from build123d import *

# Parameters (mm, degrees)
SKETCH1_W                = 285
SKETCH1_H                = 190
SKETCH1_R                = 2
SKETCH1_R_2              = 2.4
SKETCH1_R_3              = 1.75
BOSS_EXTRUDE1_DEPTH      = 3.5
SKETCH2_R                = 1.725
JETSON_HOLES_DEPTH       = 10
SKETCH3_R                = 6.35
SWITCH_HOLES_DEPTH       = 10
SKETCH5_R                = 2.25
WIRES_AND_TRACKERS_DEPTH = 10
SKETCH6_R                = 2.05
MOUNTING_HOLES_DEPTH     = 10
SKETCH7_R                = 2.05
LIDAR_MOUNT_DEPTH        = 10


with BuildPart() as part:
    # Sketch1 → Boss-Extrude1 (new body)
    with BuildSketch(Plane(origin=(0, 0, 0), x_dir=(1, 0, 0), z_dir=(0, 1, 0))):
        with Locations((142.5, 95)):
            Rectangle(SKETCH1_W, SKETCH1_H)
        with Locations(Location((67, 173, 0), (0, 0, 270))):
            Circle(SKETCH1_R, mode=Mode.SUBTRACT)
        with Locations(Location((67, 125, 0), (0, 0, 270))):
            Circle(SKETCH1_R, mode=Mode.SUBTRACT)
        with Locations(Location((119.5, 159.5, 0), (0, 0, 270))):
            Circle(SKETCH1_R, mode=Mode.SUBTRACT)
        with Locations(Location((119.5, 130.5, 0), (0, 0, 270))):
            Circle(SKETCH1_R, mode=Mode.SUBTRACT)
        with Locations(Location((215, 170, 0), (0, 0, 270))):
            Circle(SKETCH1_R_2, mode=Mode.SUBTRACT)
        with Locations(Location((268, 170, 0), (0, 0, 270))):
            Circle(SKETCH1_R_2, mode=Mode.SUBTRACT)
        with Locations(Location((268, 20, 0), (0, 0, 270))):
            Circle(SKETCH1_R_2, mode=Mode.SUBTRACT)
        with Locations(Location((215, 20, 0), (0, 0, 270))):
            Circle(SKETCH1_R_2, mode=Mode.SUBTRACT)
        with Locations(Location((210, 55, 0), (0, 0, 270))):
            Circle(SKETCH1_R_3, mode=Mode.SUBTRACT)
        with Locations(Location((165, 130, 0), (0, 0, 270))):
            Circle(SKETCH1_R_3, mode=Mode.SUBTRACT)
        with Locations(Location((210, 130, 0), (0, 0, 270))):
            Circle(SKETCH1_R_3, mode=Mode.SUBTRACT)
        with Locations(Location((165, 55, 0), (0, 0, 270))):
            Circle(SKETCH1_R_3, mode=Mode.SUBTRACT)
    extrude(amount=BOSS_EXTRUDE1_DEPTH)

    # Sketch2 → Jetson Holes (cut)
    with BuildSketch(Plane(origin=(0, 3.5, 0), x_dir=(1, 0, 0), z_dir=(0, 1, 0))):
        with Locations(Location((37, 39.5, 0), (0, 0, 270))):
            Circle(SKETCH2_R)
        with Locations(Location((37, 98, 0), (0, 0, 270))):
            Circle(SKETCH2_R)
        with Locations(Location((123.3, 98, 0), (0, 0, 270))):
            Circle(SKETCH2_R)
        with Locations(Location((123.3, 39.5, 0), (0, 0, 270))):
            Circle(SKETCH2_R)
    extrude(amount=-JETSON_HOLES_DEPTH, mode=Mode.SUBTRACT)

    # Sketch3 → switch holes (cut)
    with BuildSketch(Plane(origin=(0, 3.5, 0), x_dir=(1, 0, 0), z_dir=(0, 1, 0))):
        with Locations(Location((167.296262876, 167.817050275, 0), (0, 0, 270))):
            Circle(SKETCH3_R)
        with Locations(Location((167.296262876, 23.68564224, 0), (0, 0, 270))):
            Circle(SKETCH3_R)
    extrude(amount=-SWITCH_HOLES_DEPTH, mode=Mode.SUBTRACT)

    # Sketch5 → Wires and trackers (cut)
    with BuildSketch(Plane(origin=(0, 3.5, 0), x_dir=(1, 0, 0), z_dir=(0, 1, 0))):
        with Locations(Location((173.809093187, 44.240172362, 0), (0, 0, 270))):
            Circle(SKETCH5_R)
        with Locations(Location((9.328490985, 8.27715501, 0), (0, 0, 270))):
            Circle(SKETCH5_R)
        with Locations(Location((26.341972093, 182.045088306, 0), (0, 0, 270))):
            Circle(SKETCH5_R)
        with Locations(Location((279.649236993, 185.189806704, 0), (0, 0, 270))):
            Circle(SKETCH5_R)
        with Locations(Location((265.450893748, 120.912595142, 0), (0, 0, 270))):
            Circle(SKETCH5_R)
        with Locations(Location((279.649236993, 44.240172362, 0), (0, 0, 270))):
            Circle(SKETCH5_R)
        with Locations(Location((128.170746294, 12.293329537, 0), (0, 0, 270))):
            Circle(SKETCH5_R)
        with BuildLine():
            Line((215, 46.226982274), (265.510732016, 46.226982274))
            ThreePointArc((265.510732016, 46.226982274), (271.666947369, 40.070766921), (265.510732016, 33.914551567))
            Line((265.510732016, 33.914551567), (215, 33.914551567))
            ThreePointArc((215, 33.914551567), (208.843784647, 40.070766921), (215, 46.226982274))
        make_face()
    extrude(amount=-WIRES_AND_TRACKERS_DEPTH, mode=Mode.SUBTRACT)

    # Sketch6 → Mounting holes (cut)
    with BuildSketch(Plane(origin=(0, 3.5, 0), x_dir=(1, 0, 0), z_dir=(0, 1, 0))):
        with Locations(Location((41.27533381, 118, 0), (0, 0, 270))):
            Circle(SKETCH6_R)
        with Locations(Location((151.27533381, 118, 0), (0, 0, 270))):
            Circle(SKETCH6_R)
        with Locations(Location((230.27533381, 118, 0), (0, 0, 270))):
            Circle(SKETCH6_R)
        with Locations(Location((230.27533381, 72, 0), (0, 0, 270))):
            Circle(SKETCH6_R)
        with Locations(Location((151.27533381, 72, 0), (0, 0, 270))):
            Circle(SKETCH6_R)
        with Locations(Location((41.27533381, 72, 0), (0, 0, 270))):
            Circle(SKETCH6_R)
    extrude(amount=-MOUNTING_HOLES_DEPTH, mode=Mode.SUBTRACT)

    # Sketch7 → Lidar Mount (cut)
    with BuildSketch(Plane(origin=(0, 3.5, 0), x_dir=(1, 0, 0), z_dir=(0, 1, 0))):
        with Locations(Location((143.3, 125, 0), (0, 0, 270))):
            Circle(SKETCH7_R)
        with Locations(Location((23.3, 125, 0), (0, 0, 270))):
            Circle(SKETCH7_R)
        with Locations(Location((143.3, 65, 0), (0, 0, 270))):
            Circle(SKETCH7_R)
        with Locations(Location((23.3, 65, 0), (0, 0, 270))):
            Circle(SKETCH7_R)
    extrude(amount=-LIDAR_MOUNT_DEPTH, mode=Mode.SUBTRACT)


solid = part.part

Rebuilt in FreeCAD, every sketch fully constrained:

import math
import FreeCAD as App
import Part
import Sketcher
from FreeCAD import Vector
Q = App.Units.Quantity

doc = App.newDocument("Part")
params = doc.addObject("Spreadsheet::Sheet", "Params")
for row, (alias, value) in enumerate([
    ("sketch1_diameter", "4 mm"),
    ("sketch1_diameter2", "3.5 mm"),
    ("sketch1_diameter3", "4.8 mm"),
    ("sketch1_width", "285 mm"),
    ("sketch1_height", "190 mm"),
    ("pad1_length", "3.5 mm"),
    ("sketch2_diameter", "3.45 mm"),
    ("pocket1_length", "10 mm"),
    ("sketch3_diameter", "12.7 mm"),
    ("pocket2_length", "10 mm"),
    ("sketch4_diameter", "4.5 mm"),
    ("pocket3_length", "10 mm"),
    ("sketch5_diameter", "4.1 mm"),
    ("pocket4_length", "10 mm"),
    ("sketch6_diameter", "4.1 mm"),
    ("pocket5_length", "10 mm"),
], start=1):
    params.set(f"A{row}", alias)
    params.set(f"B{row}", "=" + value)
    params.setAlias(f"B{row}", alias)

body = doc.addObject("PartDesign::Body", "Body")

sketch1 = doc.addObject("Sketcher::SketchObject", "Sketch")
body.addObject(sketch1)
sketch1.AttachmentSupport = (doc.XZ_Plane, [""])
sketch1.MapMode = "FlatFace"
sketch1.addGeometry([
    Part.LineSegment(Vector(0, -190, 0), Vector(0, 0, 0)),
    Part.LineSegment(Vector(0, 0, 0), Vector(285, 0, 0)),
    Part.LineSegment(Vector(285, 0, 0), Vector(285, -190, 0)),
    Part.LineSegment(Vector(285, -190, 0), Vector(0, -190, 0)),
    Part.Circle(Vector(165, -55, 0), Vector(0, 0, 1), 1.8),
    Part.Circle(Vector(215, -20, 0), Vector(0, 0, 1), 2.4),
    Part.Circle(Vector(210, -55, 0), Vector(0, 0, 1), 1.8),
    Part.Circle(Vector(268, -20, 0), Vector(0, 0, 1), 2.4),
    Part.Circle(Vector(67, -125, 0), Vector(0, 0, 1), 2),
    Part.Circle(Vector(119.5, -130.5, 0), Vector(0, 0, 1), 2),
    Part.Circle(Vector(165, -130, 0), Vector(0, 0, 1), 1.8),
    Part.Circle(Vector(67, -173, 0), Vector(0, 0, 1), 2),
    Part.Circle(Vector(119.5, -159.5, 0), Vector(0, 0, 1), 2),
    Part.Circle(Vector(210, -130, 0), Vector(0, 0, 1), 1.8),
    Part.Circle(Vector(215, -170, 0), Vector(0, 0, 1), 2.4),
    Part.Circle(Vector(268, -170, 0), Vector(0, 0, 1), 2.4),
], False)
sketch1.addConstraint([
    Sketcher.Constraint("Coincident", 0, 2, 1, 1),
    Sketcher.Constraint("Coincident", 1, 2, 2, 1),
    Sketcher.Constraint("Coincident", 2, 2, 3, 1),
    Sketcher.Constraint("Coincident", 3, 2, 0, 1),
    Sketcher.Constraint("Vertical", 0),
    Sketcher.Constraint("Horizontal", 1),
    Sketcher.Constraint("Vertical", 2),
    Sketcher.Constraint("Horizontal", 3),
    Sketcher.Constraint("Coincident", 0, 2, -1, 1),
    Sketcher.Constraint("Equal", 4, 6),
    Sketcher.Constraint("Equal", 5, 7),
    Sketcher.Constraint("Equal", 8, 9),
    Sketcher.Constraint("Equal", 6, 10),
    Sketcher.Constraint("Equal", 9, 11),
    Sketcher.Constraint("Equal", 11, 12),
    Sketcher.Constraint("Equal", 10, 13),
    Sketcher.Constraint("Equal", 7, 14),
    Sketcher.Constraint("Equal", 14, 15),
    Sketcher.Constraint("Horizontal", 4, 3, 6, 3),
    Sketcher.Constraint("Horizontal", 5, 3, 7, 3),
    Sketcher.Constraint("Horizontal", 10, 3, 13, 3),
    Sketcher.Constraint("Horizontal", 14, 3, 15, 3),
    Sketcher.Constraint("Vertical", 4, 3, 10, 3),
    Sketcher.Constraint("Vertical", 8, 3, 11, 3),
    Sketcher.Constraint("Vertical", 9, 3, 12, 3),
    Sketcher.Constraint("Vertical", 6, 3, 13, 3),
    Sketcher.Constraint("Vertical", 5, 3, 14, 3),
    Sketcher.Constraint("Vertical", 7, 3, 15, 3),
    Sketcher.Constraint("Diameter", 8, Q("4 mm")),
    Sketcher.Constraint("Diameter", 4, Q("3.5 mm")),
    Sketcher.Constraint("Diameter", 5, Q("4.8 mm")),
    Sketcher.Constraint("DistanceX", 1, 1, 1, 2, Q("285 mm")),
    Sketcher.Constraint("DistanceY", 0, 1, 0, 2, Q("190 mm")),
    Sketcher.Constraint("DistanceX", -1, 1, 4, 3, Q("165 mm")),
    Sketcher.Constraint("DistanceY", 4, 3, -1, 1, Q("55 mm")),
    Sketcher.Constraint("DistanceX", -1, 1, 5, 3, Q("215 mm")),
    Sketcher.Constraint("DistanceY", 5, 3, -1, 1, Q("20 mm")),
    Sketcher.Constraint("DistanceX", -1, 1, 6, 3, Q("210 mm")),
    Sketcher.Constraint("DistanceX", -1, 1, 7, 3, Q("268 mm")),
    Sketcher.Constraint("DistanceX", -1, 1, 8, 3, Q("67 mm")),
    Sketcher.Constraint("DistanceY", 8, 3, -1, 1, Q("125 mm")),
    Sketcher.Constraint("DistanceY", 10, 3, -1, 1, Q("130 mm")),
    Sketcher.Constraint("DistanceY", 11, 3, -1, 1, Q("173 mm")),
    Sketcher.Constraint("DistanceY", 14, 3, -1, 1, Q("170 mm")),
    Sketcher.Constraint("DistanceY", 12, 3, 9, 3, Q("29 mm")),
    Sketcher.Constraint("DistanceX", -1, 1, 9, 3, Q("119.5 mm")),
    Sketcher.Constraint("DistanceY", 9, 3, -1, 1, Q("130.5 mm")),
])
sketch1.setExpression("Constraints[28]", "Params.sketch1_diameter")
sketch1.setExpression("Constraints[29]", "Params.sketch1_diameter2")
sketch1.setExpression("Constraints[30]", "Params.sketch1_diameter3")
sketch1.setExpression("Constraints[31]", "Params.sketch1_width")
sketch1.setExpression("Constraints[32]", "Params.sketch1_height")
pad1 = doc.addObject("PartDesign::Pad", "Pad")
body.addObject(pad1)
pad1.Profile = sketch1
pad1.setExpression("Length", "Params.pad1_length")
pad1.Reversed = True

sketch2 = doc.addObject("Sketcher::SketchObject", "Sketch001")
body.addObject(sketch2)
sketch2.AttachmentSupport = (doc.XZ_Plane, [""])
sketch2.MapMode = "FlatFace"
sketch2.AttachmentOffset = App.Placement(Vector(0, 0, -3.5), App.Rotation())
sketch2.addGeometry([
    Part.Circle(Vector(37, -39.5, 0), Vector(0, 0, 1), 1.7),
    Part.Circle(Vector(37, -98, 0), Vector(0, 0, 1), 1.7),
    Part.Circle(Vector(123.3, -98, 0), Vector(0, 0, 1), 1.7),
    Part.Circle(Vector(123.3, -39.5, 0), Vector(0, 0, 1), 1.7),
], False)
sketch2.addConstraint([
    Sketcher.Constraint("Equal", 0, 1),
    Sketcher.Constraint("Equal", 1, 2),
    Sketcher.Constraint("Equal", 2, 3),
    Sketcher.Constraint("Horizontal", 1, 3, 2, 3),
    Sketcher.Constraint("Horizontal", 0, 3, 3, 3),
    Sketcher.Constraint("Vertical", 0, 3, 1, 3),
    Sketcher.Constraint("Vertical", 2, 3, 3, 3),
    Sketcher.Constraint("Diameter", 0, Q("3.45 mm")),
    Sketcher.Constraint("DistanceX", -1, 1, 0, 3, Q("37 mm")),
    Sketcher.Constraint("DistanceY", 1, 3, -1, 1, Q("98 mm")),
    Sketcher.Constraint("DistanceY", 0, 3, -1, 1, Q("39.5 mm")),
    Sketcher.Constraint("DistanceX", -1, 1, 2, 3, Q("123.3 mm")),
])
sketch2.setExpression("Constraints[7]", "Params.sketch2_diameter")
pocket1 = doc.addObject("PartDesign::Pocket", "Pocket")
body.addObject(pocket1)
pocket1.Profile = sketch2
pocket1.setExpression("Length", "Params.pocket1_length")
pocket1.Reversed = True

sketch3 = doc.addObject("Sketcher::SketchObject", "Sketch002")
body.addObject(sketch3)
sketch3.AttachmentSupport = (doc.XZ_Plane, [""])
sketch3.MapMode = "FlatFace"
sketch3.AttachmentOffset = App.Placement(Vector(0, 0, -3.5), App.Rotation())
sketch3.addGeometry([
    Part.Circle(Vector(167, -168, 0), Vector(0, 0, 1), 6),
    Part.Circle(Vector(167, -24, 0), Vector(0, 0, 1), 6),
], False)
sketch3.addConstraint([
    Sketcher.Constraint("Equal", 0, 1),
    Sketcher.Constraint("Vertical", 0, 3, 1, 3),
    Sketcher.Constraint("Diameter", 0, Q("12.7 mm")),
    Sketcher.Constraint("DistanceY", 0, 3, -1, 1, Q("167.81705 mm")),
    Sketcher.Constraint("DistanceY", 0, 3, 1, 3, Q("144.131408 mm")),
    Sketcher.Constraint("DistanceX", -1, 1, 0, 3, Q("167.296263 mm")),
])
sketch3.setExpression("Constraints[2]", "Params.sketch3_diameter")
pocket2 = doc.addObject("PartDesign::Pocket", "Pocket001")
body.addObject(pocket2)
pocket2.Profile = sketch3
pocket2.setExpression("Length", "Params.pocket2_length")
pocket2.Reversed = True

sketch4 = doc.addObject("Sketcher::SketchObject", "Sketch003")
body.addObject(sketch4)
sketch4.AttachmentSupport = (doc.XZ_Plane, [""])
sketch4.MapMode = "FlatFace"
sketch4.AttachmentOffset = App.Placement(Vector(0, 0, -3.5), App.Rotation())
sketch4.addGeometry([
    Part.Circle(Vector(173.8, -44.2, 0), Vector(0, 0, 1), 2.2),
    Part.Circle(Vector(9.3, -8.3, 0), Vector(0, 0, 1), 2.2),
    Part.Circle(Vector(26.3, -182, 0), Vector(0, 0, 1), 2.2),
    Part.Circle(Vector(279.6, -185.2, 0), Vector(0, 0, 1), 2.2),
    Part.Circle(Vector(265.5, -120.9, 0), Vector(0, 0, 1), 2.2),
    Part.Circle(Vector(279.6, -44.2, 0), Vector(0, 0, 1), 2.2),
    Part.Circle(Vector(128.2, -12.3, 0), Vector(0, 0, 1), 2.2),
    Part.LineSegment(Vector(265.5, -46.2, 0), Vector(215, -46.2, 0)),
    Part.ArcOfCircle(Part.Circle(Vector(215, -40.1, 0), Vector(0, 0, 1), 6.2), math.radians(90), math.radians(270)),
    Part.LineSegment(Vector(215, -33.9, 0), Vector(265.5, -33.9, 0)),
    Part.ArcOfCircle(Part.Circle(Vector(265.5, -40.1, 0), Vector(0, 0, 1), 6.2), math.radians(-90), math.radians(90)),
], False)
sketch4.addConstraint([
    Sketcher.Constraint("Tangent", 7, 2, 8, 2),
    Sketcher.Constraint("Tangent", 8, 1, 9, 1),
    Sketcher.Constraint("Tangent", 9, 2, 10, 2),
    Sketcher.Constraint("Tangent", 10, 1, 7, 1),
    Sketcher.Constraint("Horizontal", 7),
    Sketcher.Constraint("Horizontal", 9),
    Sketcher.Constraint("Equal", 0, 1),
    Sketcher.Constraint("Equal", 1, 2),
    Sketcher.Constraint("Equal", 2, 3),
    Sketcher.Constraint("Equal", 3, 4),
    Sketcher.Constraint("Equal", 4, 5),
    Sketcher.Constraint("Equal", 5, 6),
    Sketcher.Constraint("Horizontal", 0, 3, 5, 3),
    Sketcher.Constraint("Vertical", 3, 3, 5, 3),
    Sketcher.Constraint("Diameter", 0, Q("4.5 mm")),
    Sketcher.Constraint("DistanceX", -1, 1, 8, 3, Q("215 mm")),
    Sketcher.Constraint("Radius", 8, Q("6.156215 mm")),
    Sketcher.Constraint("DistanceX", 0, 3, 4, 3, Q("91.641801 mm")),
    Sketcher.Constraint("DistanceX", 7, 2, 7, 1, Q("50.510732 mm")),
    Sketcher.Constraint("DistanceX", -1, 1, 1, 3, Q("9.328491 mm")),
    Sketcher.Constraint("DistanceY", 2, 3, -1, 1, Q("182.045088 mm")),
    Sketcher.Constraint("DistanceY", 6, 3, -1, 1, Q("12.29333 mm")),
    Sketcher.Constraint("DistanceY", 8, 1, -1, 1, Q("33.914552 mm")),
    Sketcher.Constraint("DistanceX", 1, 3, 2, 3, Q("17.013481 mm")),
    Sketcher.Constraint("DistanceX", 2, 3, 0, 3, Q("147.467121 mm")),
    Sketcher.Constraint("DistanceY", 3, 3, 2, 3, Q("3.144718 mm")),
    Sketcher.Constraint("DistanceY", 3, 3, 1, 3, Q("176.912652 mm")),
    Sketcher.Constraint("DistanceY", 3, 3, 4, 3, Q("64.277212 mm")),
    Sketcher.Constraint("DistanceX", 6, 3, 5, 3, Q("151.478491 mm")),
    Sketcher.Constraint("DistanceY", 7, 2, 0, 3, Q("1.98681 mm")),
    Sketcher.Constraint("DistanceX", -1, 1, 3, 3, Q("279.649237 mm")),
])
sketch4.setExpression("Constraints[14]", "Params.sketch4_diameter")
pocket3 = doc.addObject("PartDesign::Pocket", "Pocket002")
body.addObject(pocket3)
pocket3.Profile = sketch4
pocket3.setExpression("Length", "Params.pocket3_length")
pocket3.Reversed = True

sketch5 = doc.addObject("Sketcher::SketchObject", "Sketch004")
body.addObject(sketch5)
sketch5.AttachmentSupport = (doc.XZ_Plane, [""])
sketch5.MapMode = "FlatFace"
sketch5.AttachmentOffset = App.Placement(Vector(0, 0, -3.5), App.Rotation())
sketch5.addGeometry([
    Part.Circle(Vector(41.3, -118, 0), Vector(0, 0, 1), 2),
    Part.Circle(Vector(151.3, -118, 0), Vector(0, 0, 1), 2),
    Part.Circle(Vector(230.3, -118, 0), Vector(0, 0, 1), 2),
    Part.Circle(Vector(230.3, -72, 0), Vector(0, 0, 1), 2),
    Part.Circle(Vector(151.3, -72, 0), Vector(0, 0, 1), 2),
    Part.Circle(Vector(41.3, -72, 0), Vector(0, 0, 1), 2),
], False)
sketch5.addConstraint([
    Sketcher.Constraint("Equal", 0, 1),
    Sketcher.Constraint("Equal", 1, 2),
    Sketcher.Constraint("Equal", 2, 3),
    Sketcher.Constraint("Equal", 3, 4),
    Sketcher.Constraint("Equal", 4, 5),
    Sketcher.Constraint("Horizontal", 0, 3, 1, 3),
    Sketcher.Constraint("Horizontal", 1, 3, 2, 3),
    Sketcher.Constraint("Horizontal", 3, 3, 4, 3),
    Sketcher.Constraint("Horizontal", 4, 3, 5, 3),
    Sketcher.Constraint("Vertical", 2, 3, 3, 3),
    Sketcher.Constraint("Vertical", 1, 3, 4, 3),
    Sketcher.Constraint("Vertical", 0, 3, 5, 3),
    Sketcher.Constraint("Diameter", 0, Q("4.1 mm")),
    Sketcher.Constraint("DistanceY", 0, 3, -1, 1, Q("118 mm")),
    Sketcher.Constraint("DistanceY", 3, 3, -1, 1, Q("72 mm")),
    Sketcher.Constraint("DistanceX", 0, 3, 1, 3, Q("110 mm")),
    Sketcher.Constraint("DistanceX", 1, 3, 2, 3, Q("79 mm")),
    Sketcher.Constraint("DistanceX", -1, 1, 0, 3, Q("41.275334 mm")),
])
sketch5.setExpression("Constraints[12]", "Params.sketch5_diameter")
pocket4 = doc.addObject("PartDesign::Pocket", "Pocket003")
body.addObject(pocket4)
pocket4.Profile = sketch5
pocket4.setExpression("Length", "Params.pocket4_length")
pocket4.Reversed = True

sketch6 = doc.addObject("Sketcher::SketchObject", "Sketch005")
body.addObject(sketch6)
sketch6.AttachmentSupport = (doc.XZ_Plane, [""])
sketch6.MapMode = "FlatFace"
sketch6.AttachmentOffset = App.Placement(Vector(0, 0, -3.5), App.Rotation())
sketch6.addGeometry([
    Part.Circle(Vector(143.3, -125, 0), Vector(0, 0, 1), 2),
    Part.Circle(Vector(23.3, -125, 0), Vector(0, 0, 1), 2),
    Part.Circle(Vector(143.3, -65, 0), Vector(0, 0, 1), 2),
    Part.Circle(Vector(23.3, -65, 0), Vector(0, 0, 1), 2),
], False)
sketch6.addConstraint([
    Sketcher.Constraint("Equal", 0, 1),
    Sketcher.Constraint("Equal", 1, 2),
    Sketcher.Constraint("Equal", 2, 3),
    Sketcher.Constraint("Horizontal", 0, 3, 1, 3),
    Sketcher.Constraint("Horizontal", 2, 3, 3, 3),
    Sketcher.Constraint("Vertical", 0, 3, 2, 3),
    Sketcher.Constraint("Vertical", 1, 3, 3, 3),
    Sketcher.Constraint("Diameter", 0, Q("4.1 mm")),
    Sketcher.Constraint("DistanceY", 0, 3, -1, 1, Q("125 mm")),
    Sketcher.Constraint("DistanceY", 2, 3, -1, 1, Q("65 mm")),
    Sketcher.Constraint("DistanceX", 1, 3, 0, 3, Q("120 mm")),
    Sketcher.Constraint("DistanceX", -1, 1, 0, 3, Q("143.3 mm")),
])
sketch6.setExpression("Constraints[7]", "Params.sketch6_diameter")
pocket5 = doc.addObject("PartDesign::Pocket", "Pocket004")
body.addObject(pocket5)
pocket5.Profile = sketch6
pocket5.setExpression("Length", "Params.pocket5_length")
pocket5.Reversed = True

doc.recompute()
